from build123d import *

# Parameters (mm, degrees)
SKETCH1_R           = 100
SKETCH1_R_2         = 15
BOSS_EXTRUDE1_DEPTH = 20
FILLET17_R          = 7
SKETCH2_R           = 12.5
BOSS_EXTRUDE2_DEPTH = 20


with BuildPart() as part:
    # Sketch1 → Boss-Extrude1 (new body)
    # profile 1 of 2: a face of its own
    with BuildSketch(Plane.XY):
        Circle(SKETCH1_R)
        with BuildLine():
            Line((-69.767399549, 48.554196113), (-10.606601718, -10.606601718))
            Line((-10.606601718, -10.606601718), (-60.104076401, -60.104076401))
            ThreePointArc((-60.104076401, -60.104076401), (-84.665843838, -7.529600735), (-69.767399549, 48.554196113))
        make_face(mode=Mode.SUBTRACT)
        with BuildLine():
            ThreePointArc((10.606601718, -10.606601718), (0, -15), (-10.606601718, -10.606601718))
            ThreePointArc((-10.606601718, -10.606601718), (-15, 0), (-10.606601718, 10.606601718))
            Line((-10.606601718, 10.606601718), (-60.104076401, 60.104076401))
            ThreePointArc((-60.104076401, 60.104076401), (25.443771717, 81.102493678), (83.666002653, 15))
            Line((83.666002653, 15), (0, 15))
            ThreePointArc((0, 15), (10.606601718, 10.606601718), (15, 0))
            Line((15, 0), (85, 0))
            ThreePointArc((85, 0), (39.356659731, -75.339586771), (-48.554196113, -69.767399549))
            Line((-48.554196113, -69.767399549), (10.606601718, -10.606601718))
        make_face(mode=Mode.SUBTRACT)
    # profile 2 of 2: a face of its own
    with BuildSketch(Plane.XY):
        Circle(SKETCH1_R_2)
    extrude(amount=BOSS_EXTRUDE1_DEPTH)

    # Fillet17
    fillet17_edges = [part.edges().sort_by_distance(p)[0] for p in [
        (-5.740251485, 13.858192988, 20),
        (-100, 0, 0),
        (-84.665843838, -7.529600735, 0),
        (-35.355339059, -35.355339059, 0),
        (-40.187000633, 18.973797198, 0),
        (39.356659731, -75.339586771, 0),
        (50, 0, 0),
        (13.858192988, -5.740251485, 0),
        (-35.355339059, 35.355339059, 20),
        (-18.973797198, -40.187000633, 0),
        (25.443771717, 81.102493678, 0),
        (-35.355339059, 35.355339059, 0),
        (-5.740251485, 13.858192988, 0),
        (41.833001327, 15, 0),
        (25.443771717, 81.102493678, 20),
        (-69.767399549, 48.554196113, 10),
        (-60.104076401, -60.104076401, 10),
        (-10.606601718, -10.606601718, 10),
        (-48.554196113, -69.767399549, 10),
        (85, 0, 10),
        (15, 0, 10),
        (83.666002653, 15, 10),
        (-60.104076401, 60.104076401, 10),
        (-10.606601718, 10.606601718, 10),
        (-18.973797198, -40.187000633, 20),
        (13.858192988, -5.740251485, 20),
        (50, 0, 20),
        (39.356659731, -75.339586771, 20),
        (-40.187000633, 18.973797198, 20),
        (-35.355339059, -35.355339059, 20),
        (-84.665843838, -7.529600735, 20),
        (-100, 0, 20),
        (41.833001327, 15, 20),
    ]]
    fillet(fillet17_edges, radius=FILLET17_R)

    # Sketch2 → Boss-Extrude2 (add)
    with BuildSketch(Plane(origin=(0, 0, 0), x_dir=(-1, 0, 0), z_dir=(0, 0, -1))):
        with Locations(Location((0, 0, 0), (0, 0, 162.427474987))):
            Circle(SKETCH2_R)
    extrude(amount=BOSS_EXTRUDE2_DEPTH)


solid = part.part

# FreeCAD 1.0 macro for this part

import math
import FreeCAD as App
import Part
import Sketcher

V = App.Vector
Q = App.Units.Quantity

doc = App.newDocument("Part")
body = doc.addObject("PartDesign::Body", "Body")

# Sketch on XY plane
sketch1 = doc.addObject("Sketcher::SketchObject", "Sketch")
body.addObject(sketch1)
sketch1.AttachmentSupport = (doc.XY_Plane, [""])
sketch1.MapMode = "FlatFace"
sketch1.addGeometry(Part.Circle(V(0, 0, 0), V(0, 0, 1), 100), False)
sketch1.addGeometry(Part.LineSegment(V(-70, 49, 0), V(-11, -11, 0)), False)
sketch1.addGeometry(Part.LineSegment(V(-11, -11, 0), V(-60, -60, 0)), False)
sketch1.addGeometry(Part.ArcOfCircle(Part.Circle(V(0, 0, 0), V(0, 0, 1), 85), math.radians(145), math.radians(225)), False)
sketch1.addGeometry(Part.LineSegment(V(-49, -70, 0), V(11, -11, 0)), False)
sketch1.addGeometry(Part.ArcOfCircle(Part.Circle(V(0, 0, 0), V(0, 0, 1), 15), math.radians(-45), math.radians(0)), False)
sketch1.addGeometry(Part.LineSegment(V(15, 0, 0), V(85, 0, 0)), False)
sketch1.addGeometry(Part.ArcOfCircle(Part.Circle(V(0, 0, 0), V(0, 0, 1), 85), math.radians(-125), math.radians(0)), False)
sketch1.addGeometry(Part.LineSegment(V(84, 15, 0), V(0, 15, 0)), False)
sketch1.addGeometry(Part.ArcOfCircle(Part.Circle(V(0, 0, 0), V(0, 0, 1), 15), math.radians(90), math.radians(135)), False)
sketch1.addGeometry(Part.LineSegment(V(-11, 11, 0), V(-60, 60, 0)), False)
sketch1.addGeometry(Part.ArcOfCircle(Part.Circle(V(0, 0, 0), V(0, 0, 1), 85), math.radians(10), math.radians(135)), False)
sketch1.addConstraint(Sketcher.Constraint("Coincident", 1, 2, 2, 1))
sketch1.addConstraint(Sketcher.Constraint("Coincident", 2, 2, 3, 2))
sketch1.addConstraint(Sketcher.Constraint("Coincident", 3, 1, 1, 1))
sketch1.addConstraint(Sketcher.Constraint("Tangent", 4, 2, 5, 1))
sketch1.addConstraint(Sketcher.Constraint("Coincident", 5, 2, 6, 1))
sketch1.addConstraint(Sketcher.Constraint("Coincident", 6, 2, 7, 2))
sketch1.addConstraint(Sketcher.Constraint("Coincident", 7, 1, 4, 1))
sketch1.addConstraint(Sketcher.Constraint("Tangent", 8, 2, 9, 1))
sketch1.addConstraint(Sketcher.Constraint("Coincident", 9, 2, 10, 1))
sketch1.addConstraint(Sketcher.Constraint("Coincident", 10, 2, 11, 2))
sketch1.addConstraint(Sketcher.Constraint("Coincident", 11, 1, 8, 1))
sketch1.addConstraint(Sketcher.Constraint("Horizontal", 6))
sketch1.addConstraint(Sketcher.Constraint("Horizontal", 8))
sketch1.addConstraint(Sketcher.Constraint("Coincident", 0, 3, -1, 1))
sketch1.addConstraint(Sketcher.Constraint("Coincident", 3, 3, -1, 1))
sketch1.addConstraint(Sketcher.Constraint("Coincident", 5, 3, -1, 1))
sketch1.addConstraint(Sketcher.Constraint("Coincident", 7, 3, -1, 1))
sketch1.addConstraint(Sketcher.Constraint("Coincident", 9, 3, -1, 1))
sketch1.addConstraint(Sketcher.Constraint("Coincident", 11, 3, -1, 1))
sketch1.addConstraint(Sketcher.Constraint("Equal", 3, 7))
sketch1.addConstraint(Sketcher.Constraint("Equal", 5, 9))
sketch1.addConstraint(Sketcher.Constraint("Equal", 7, 11))
sketch1.addConstraint(Sketcher.Constraint("Symmetric", 1, 2, 4, 2, -2))
sketch1.addConstraint(Sketcher.Constraint("PointOnObject", 5, 2, -1))
sketch1.addConstraint(Sketcher.Constraint("Perpendicular", 1, 2))
sketch1.addConstraint(Sketcher.Constraint("Parallel", 2, 4))
sketch1.addConstraint(Sketcher.Constraint("Perpendicular", 4, 10))
sketch1.addConstraint(Sketcher.Constraint("Vertical", 1, 2, 9, 2))
sketch1.addConstraint(Sketcher.Constraint("Vertical", 2, 2, 10, 2))
sketch1.addConstraint(Sketcher.Constraint("Diameter", 0, Q("200 mm")))
sketch1.addConstraint(Sketcher.Constraint("Radius", 3, Q("85 mm")))
sketch1.addConstraint(Sketcher.Constraint("Radius", 5, Q("15 mm")))
pad1 = doc.addObject("PartDesign::Pad", "Pad")
body.addObject(pad1)
pad1.Profile = sketch1
pad1.Length = 20
doc.recompute()

fillet = doc.addObject("PartDesign::Fillet", "Fillet")
body.addObject(fillet)
fillet.Base = (pad1, ["Edge1"])
fillet.UseAllEdges = True
fillet.Radius = 7

# Sketch on XY plane
sketch2 = doc.addObject("Sketcher::SketchObject", "Sketch001")
body.addObject(sketch2)
sketch2.AttachmentSupport = (doc.XY_Plane, [""])
sketch2.MapMode = "FlatFace"
sketch2.addGeometry(Part.Circle(V(0, 0, 0), V(0, 0, 1), 12), False)
sketch2.addConstraint(Sketcher.Constraint("Coincident", 0, 3, -1, 1))
sketch2.addConstraint(Sketcher.Constraint("Diameter", 0, Q("25 mm")))
pad2 = doc.addObject("PartDesign::Pad", "Pad001")
body.addObject(pad2)
pad2.Profile = sketch2
pad2.Length = 20
pad2.Reversed = True

doc.recompute()
